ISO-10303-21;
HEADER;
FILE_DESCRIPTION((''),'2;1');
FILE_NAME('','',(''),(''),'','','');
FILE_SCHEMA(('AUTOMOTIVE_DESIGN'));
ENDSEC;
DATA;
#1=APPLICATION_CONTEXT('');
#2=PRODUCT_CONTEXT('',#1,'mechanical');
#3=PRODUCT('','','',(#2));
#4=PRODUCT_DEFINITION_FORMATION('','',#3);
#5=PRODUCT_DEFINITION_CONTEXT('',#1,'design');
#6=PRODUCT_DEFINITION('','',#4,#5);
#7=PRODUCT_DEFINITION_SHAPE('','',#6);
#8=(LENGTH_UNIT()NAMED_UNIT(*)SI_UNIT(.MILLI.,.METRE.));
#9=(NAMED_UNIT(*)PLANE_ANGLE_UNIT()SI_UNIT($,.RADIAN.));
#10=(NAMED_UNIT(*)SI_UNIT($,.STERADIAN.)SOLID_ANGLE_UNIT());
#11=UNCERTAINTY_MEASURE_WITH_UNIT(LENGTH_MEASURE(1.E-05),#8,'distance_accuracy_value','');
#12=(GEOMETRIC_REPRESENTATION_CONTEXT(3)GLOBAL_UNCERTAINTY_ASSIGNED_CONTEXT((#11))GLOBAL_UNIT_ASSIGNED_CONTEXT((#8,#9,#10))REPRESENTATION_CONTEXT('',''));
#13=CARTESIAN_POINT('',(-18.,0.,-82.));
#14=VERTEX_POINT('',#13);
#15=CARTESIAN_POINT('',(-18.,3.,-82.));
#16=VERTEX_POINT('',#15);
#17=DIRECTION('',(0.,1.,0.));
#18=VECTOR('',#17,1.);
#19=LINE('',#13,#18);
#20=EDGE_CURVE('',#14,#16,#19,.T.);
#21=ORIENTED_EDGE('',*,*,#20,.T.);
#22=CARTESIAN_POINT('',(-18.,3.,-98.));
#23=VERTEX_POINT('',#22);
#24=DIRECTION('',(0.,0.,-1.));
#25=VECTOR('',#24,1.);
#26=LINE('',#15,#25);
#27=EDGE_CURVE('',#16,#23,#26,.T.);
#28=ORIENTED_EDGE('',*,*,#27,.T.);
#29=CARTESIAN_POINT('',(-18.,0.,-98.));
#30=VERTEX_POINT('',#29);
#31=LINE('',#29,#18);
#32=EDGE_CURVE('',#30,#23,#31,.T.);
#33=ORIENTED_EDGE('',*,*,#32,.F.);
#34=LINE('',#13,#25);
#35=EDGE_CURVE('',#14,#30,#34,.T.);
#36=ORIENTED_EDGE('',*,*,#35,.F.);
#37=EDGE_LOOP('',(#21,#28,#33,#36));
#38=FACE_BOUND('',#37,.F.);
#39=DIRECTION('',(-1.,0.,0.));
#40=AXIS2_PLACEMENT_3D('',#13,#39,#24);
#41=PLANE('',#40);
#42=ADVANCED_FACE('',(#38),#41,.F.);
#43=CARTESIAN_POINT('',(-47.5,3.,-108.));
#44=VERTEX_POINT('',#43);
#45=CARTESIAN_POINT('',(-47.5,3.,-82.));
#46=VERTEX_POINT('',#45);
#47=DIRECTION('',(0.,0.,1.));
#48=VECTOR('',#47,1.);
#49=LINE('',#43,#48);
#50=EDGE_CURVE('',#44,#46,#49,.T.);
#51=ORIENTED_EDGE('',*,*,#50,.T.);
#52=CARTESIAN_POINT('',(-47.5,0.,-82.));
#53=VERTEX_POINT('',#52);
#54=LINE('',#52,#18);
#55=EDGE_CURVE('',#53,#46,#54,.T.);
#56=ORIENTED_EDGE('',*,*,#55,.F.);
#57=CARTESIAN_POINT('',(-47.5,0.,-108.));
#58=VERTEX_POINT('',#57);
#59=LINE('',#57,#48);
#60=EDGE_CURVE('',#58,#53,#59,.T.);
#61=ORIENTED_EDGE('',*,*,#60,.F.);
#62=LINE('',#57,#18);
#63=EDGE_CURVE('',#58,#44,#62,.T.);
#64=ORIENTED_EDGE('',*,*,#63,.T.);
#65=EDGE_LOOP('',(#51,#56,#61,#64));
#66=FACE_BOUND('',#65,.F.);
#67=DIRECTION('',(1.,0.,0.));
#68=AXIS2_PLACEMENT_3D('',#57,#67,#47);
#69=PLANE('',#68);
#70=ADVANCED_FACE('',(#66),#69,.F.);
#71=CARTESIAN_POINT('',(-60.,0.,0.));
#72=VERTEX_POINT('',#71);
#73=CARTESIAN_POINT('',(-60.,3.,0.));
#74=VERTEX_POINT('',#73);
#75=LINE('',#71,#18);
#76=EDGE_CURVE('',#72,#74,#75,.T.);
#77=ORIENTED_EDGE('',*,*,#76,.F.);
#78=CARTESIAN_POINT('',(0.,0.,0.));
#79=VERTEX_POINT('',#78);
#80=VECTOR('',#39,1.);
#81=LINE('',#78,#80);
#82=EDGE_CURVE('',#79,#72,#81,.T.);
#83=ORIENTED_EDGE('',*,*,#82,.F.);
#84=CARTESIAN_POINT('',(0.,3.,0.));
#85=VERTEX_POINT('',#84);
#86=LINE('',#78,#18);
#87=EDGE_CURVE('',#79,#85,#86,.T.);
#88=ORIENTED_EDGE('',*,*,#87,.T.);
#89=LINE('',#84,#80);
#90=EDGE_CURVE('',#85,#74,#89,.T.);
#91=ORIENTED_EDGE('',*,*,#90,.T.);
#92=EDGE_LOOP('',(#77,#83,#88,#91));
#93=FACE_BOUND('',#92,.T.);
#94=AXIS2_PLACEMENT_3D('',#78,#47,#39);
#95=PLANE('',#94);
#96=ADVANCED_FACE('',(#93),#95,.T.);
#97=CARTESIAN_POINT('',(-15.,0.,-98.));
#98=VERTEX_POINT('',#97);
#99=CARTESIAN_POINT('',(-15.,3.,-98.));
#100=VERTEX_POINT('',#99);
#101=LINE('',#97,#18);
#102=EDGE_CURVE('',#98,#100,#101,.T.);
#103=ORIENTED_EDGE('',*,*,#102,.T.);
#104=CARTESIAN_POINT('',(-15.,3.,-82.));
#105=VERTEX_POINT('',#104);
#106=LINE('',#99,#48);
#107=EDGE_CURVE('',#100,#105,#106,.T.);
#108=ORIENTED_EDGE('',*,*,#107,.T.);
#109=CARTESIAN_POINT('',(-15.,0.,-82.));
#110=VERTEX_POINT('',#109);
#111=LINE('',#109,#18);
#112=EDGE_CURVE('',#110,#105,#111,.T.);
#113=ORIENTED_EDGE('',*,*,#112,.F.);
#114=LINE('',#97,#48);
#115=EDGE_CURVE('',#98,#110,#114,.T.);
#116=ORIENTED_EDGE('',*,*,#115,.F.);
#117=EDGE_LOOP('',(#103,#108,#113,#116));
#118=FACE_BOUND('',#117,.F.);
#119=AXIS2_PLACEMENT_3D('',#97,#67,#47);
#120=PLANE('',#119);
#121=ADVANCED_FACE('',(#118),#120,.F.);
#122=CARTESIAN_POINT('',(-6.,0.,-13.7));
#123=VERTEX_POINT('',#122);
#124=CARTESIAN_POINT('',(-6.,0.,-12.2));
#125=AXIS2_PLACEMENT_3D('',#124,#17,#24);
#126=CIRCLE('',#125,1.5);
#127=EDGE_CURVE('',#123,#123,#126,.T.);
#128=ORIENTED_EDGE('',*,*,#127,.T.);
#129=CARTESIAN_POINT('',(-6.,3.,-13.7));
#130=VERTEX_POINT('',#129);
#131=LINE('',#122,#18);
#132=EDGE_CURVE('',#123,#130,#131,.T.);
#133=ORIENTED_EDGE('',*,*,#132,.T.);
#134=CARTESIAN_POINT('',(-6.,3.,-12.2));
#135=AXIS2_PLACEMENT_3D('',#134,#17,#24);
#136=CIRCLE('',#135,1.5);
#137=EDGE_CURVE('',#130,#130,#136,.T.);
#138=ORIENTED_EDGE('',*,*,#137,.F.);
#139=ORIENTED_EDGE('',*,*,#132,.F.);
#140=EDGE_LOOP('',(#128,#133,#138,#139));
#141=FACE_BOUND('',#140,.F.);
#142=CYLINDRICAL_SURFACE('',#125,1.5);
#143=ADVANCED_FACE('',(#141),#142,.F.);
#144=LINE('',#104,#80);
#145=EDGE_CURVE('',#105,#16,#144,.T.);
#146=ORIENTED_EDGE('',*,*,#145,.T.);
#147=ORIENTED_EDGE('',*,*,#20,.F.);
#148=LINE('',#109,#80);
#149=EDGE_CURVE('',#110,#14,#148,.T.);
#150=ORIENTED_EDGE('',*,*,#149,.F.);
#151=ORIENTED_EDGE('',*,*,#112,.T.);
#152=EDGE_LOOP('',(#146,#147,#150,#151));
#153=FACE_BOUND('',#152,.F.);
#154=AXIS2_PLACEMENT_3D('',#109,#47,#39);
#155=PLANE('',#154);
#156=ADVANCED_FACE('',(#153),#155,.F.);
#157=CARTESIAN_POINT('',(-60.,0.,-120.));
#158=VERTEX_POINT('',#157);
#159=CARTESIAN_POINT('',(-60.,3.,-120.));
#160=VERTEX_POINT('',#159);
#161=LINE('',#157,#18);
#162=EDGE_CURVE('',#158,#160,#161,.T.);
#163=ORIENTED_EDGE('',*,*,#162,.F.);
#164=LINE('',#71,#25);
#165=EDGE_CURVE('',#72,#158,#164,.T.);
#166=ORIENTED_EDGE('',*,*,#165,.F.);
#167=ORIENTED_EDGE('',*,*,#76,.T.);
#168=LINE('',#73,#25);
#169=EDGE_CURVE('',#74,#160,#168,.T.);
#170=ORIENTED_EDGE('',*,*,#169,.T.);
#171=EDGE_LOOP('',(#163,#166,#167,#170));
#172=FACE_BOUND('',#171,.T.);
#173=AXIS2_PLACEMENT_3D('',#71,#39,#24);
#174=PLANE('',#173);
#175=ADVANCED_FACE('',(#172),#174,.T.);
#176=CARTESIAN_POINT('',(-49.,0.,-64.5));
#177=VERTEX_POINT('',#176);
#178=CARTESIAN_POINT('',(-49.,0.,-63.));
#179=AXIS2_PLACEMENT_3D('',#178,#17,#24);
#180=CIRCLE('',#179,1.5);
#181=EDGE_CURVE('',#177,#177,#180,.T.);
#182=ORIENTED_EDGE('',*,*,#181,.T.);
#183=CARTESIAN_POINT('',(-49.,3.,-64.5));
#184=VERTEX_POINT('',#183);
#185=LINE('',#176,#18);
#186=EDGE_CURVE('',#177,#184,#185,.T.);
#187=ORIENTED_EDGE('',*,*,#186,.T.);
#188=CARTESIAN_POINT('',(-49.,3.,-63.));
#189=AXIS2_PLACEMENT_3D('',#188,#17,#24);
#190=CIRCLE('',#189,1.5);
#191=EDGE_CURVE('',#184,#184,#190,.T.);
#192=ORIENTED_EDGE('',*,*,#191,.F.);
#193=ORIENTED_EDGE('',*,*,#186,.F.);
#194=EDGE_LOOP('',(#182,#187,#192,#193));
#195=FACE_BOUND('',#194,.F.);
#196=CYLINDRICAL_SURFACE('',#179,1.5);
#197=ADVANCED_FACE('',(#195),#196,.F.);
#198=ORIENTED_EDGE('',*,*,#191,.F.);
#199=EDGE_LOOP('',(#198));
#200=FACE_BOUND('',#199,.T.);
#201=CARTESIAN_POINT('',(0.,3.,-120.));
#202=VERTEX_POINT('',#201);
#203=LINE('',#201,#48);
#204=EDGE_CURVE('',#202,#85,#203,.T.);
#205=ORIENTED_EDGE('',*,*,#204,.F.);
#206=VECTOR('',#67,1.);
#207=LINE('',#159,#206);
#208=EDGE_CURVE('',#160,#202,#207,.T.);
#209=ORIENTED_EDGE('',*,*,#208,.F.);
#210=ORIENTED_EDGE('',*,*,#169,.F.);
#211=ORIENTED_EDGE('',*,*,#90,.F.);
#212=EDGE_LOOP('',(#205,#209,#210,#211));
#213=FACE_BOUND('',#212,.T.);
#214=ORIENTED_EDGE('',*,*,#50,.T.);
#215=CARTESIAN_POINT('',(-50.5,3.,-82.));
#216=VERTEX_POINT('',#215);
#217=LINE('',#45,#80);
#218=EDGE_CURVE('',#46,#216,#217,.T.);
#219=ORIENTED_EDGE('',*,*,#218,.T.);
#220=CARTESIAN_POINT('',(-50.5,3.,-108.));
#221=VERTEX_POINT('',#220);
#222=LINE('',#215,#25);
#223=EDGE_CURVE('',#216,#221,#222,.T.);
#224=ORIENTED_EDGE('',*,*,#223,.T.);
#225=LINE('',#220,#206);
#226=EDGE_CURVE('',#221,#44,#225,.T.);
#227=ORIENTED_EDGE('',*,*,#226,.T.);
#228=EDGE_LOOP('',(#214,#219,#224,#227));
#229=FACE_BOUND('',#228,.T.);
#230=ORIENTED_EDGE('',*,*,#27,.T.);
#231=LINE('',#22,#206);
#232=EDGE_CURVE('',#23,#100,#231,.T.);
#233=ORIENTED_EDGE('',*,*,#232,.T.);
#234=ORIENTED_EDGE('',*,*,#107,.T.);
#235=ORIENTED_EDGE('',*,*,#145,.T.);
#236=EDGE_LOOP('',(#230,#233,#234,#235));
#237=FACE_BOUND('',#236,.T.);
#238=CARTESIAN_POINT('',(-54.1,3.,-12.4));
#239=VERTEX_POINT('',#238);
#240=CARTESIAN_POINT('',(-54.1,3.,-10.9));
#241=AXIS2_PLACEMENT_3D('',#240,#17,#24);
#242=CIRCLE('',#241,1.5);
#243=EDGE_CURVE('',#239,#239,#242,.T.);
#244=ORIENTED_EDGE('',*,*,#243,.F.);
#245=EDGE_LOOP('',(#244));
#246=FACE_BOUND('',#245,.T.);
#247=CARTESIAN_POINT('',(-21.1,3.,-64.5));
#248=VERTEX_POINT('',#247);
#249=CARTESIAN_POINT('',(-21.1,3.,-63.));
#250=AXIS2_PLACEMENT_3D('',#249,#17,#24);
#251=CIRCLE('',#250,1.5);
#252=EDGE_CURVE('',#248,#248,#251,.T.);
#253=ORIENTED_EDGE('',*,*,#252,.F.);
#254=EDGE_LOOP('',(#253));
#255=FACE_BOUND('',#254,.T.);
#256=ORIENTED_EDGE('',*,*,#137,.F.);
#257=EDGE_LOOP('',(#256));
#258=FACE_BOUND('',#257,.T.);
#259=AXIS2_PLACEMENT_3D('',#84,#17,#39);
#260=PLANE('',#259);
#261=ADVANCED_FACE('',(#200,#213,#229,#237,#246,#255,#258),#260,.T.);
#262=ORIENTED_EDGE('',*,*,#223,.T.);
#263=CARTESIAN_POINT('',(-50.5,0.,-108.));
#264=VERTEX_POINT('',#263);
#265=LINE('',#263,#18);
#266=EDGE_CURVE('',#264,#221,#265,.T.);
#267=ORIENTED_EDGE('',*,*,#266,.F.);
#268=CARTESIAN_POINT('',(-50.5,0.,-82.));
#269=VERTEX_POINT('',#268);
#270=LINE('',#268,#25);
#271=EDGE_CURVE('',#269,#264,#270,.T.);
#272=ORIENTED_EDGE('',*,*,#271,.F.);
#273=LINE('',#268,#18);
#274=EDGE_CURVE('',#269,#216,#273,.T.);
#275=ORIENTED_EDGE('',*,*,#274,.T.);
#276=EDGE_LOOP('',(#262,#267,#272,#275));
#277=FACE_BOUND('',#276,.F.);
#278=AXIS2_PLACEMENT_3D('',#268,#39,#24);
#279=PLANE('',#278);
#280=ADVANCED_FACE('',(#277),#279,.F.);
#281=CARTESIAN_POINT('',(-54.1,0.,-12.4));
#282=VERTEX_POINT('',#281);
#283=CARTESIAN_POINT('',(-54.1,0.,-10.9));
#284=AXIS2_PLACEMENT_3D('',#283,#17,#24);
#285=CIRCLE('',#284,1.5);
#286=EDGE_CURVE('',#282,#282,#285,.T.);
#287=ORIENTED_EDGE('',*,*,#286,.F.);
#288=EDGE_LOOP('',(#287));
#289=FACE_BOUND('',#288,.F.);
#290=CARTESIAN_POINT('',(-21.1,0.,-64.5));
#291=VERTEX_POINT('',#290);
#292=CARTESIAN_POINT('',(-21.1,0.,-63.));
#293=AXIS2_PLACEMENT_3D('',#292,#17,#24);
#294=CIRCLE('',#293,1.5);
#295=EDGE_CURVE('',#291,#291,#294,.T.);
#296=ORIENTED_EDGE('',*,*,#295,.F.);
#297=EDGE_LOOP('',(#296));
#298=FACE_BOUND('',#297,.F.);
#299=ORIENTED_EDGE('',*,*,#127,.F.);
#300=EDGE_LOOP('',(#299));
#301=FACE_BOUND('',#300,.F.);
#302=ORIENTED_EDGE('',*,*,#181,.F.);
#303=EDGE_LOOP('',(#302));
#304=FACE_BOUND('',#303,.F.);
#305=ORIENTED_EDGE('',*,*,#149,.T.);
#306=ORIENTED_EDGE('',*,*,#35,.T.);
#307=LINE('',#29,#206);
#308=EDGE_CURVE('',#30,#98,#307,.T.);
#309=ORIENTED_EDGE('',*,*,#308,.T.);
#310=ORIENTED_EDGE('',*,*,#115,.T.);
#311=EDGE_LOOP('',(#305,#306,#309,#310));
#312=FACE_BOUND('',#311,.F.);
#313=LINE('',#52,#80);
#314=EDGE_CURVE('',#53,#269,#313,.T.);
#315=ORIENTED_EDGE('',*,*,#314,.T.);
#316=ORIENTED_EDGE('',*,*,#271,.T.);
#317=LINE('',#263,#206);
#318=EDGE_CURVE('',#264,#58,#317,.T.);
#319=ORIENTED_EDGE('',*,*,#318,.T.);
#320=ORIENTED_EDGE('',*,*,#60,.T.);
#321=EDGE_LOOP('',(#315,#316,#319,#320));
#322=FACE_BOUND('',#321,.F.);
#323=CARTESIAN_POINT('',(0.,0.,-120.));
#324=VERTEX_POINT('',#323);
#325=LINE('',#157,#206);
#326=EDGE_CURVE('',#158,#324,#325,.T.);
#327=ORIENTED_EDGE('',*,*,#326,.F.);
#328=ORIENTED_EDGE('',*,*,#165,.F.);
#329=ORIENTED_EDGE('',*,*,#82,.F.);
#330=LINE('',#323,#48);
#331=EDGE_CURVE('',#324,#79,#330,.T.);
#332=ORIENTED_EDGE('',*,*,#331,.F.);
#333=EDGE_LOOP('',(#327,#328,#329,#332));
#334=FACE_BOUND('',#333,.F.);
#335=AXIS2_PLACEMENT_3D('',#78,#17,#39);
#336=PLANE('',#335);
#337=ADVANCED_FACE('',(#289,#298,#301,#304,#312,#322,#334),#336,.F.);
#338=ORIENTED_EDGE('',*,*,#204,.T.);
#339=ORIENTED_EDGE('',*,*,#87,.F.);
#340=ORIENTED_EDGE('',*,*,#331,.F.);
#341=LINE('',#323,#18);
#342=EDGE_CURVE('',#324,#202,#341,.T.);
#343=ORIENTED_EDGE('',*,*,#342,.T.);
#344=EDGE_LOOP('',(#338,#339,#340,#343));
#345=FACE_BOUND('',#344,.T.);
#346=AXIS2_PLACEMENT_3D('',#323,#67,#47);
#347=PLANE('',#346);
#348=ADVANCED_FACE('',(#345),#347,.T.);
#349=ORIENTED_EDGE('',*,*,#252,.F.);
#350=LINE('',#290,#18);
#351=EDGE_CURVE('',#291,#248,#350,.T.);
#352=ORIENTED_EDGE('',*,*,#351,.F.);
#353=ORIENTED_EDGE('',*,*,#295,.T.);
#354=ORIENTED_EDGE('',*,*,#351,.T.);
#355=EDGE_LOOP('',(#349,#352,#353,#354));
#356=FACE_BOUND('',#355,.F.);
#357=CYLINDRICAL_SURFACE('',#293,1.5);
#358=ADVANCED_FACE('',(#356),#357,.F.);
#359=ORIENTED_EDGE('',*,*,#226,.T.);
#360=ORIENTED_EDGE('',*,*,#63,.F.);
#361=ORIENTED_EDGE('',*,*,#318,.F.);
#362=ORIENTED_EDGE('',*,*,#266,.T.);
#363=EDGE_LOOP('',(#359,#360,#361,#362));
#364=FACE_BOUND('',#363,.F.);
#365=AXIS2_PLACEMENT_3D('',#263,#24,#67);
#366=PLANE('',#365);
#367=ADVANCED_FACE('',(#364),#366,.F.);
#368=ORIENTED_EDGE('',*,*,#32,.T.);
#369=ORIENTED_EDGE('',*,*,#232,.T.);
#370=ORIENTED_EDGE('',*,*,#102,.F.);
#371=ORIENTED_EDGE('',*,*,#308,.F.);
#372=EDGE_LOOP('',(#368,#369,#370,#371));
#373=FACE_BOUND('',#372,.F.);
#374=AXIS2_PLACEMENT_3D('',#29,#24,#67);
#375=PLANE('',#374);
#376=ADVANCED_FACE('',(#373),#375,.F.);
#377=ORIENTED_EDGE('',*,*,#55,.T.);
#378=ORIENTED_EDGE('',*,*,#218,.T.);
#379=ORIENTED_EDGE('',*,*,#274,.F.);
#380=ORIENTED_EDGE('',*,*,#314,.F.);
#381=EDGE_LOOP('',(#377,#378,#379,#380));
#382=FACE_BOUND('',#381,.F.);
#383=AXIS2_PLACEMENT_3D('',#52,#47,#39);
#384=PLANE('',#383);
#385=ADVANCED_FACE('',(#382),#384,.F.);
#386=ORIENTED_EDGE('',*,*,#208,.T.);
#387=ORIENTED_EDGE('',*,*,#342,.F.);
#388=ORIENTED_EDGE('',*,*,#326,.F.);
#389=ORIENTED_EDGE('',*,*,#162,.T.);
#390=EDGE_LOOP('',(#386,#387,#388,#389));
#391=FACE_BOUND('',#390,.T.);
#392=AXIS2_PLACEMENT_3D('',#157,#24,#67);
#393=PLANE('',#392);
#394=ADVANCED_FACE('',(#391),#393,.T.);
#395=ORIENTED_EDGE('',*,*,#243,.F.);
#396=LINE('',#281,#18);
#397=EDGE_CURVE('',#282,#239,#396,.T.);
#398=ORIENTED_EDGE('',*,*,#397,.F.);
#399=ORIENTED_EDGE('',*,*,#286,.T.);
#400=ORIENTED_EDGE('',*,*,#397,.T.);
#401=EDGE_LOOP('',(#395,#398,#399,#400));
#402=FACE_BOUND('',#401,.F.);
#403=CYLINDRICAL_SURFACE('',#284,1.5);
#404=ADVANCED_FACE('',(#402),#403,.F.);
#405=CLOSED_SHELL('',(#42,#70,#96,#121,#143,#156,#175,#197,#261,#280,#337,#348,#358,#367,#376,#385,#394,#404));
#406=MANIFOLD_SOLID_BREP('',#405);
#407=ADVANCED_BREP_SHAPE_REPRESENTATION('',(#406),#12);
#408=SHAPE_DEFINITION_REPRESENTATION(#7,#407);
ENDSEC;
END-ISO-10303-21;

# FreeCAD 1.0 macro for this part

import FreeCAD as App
import Part
import Sketcher
from FreeCAD import Vector
Q = App.Units.Quantity


def add_polygon(sketch, points):
    """Adds a closed chain of lines whose ends are joined by coincident constraints."""
    first, n = sketch.GeometryCount, len(points)
    for a, b in zip(points, points[1:] + points[:1]):
        sketch.addGeometry(Part.LineSegment(App.Vector(*a, 0), App.Vector(*b, 0)), False)
    for i in range(n):
        sketch.addConstraint(Sketcher.Constraint("Coincident", first + i, 2, first + (i + 1) % n, 1))

doc = App.newDocument("Part")
body = doc.addObject("PartDesign::Body", "Body")

# Sketch on XZ plane
sketch1 = body.newObject("Sketcher::SketchObject", "Sketch")
sketch1.AttachmentSupport = (doc.getObject("XZ_Plane"), [""])
sketch1.MapMode = "FlatFace"
add_polygon(sketch1, [(-60, 0), (0, 0), (0, -120), (-60, -120)])  # lines 0-3
add_polygon(sketch1, [(-15, -98), (-15, -82), (-18, -82), (-18, -98)])  # lines 4-7
add_polygon(sketch1, [(-50.5, -82), (-50.5, -108), (-47.5, -108), (-47.5, -82)])  # lines 8-11
sketch1.addConstraint([
    Sketcher.Constraint("Horizontal", 0),
    Sketcher.Constraint("Vertical", 1),
    Sketcher.Constraint("Horizontal", 2),
    Sketcher.Constraint("Vertical", 3),
    Sketcher.Constraint("Vertical", 4),
    Sketcher.Constraint("Horizontal", 5),
    Sketcher.Constraint("Vertical", 6),
    Sketcher.Constraint("Horizontal", 7),
    Sketcher.Constraint("Vertical", 8),
    Sketcher.Constraint("Horizontal", 9),
    Sketcher.Constraint("Vertical", 10),
    Sketcher.Constraint("Horizontal", 11),
    Sketcher.Constraint("Coincident", 0, 2, -1, 1),
    Sketcher.Constraint("Horizontal", 5, 2, 10, 2),
    Sketcher.Constraint("Equal", 7, 9),
    Sketcher.Constraint("DistanceX", 0, 1, 0, 2, Q("60 mm")),
    Sketcher.Constraint("DistanceX", 5, 2, 5, 1, Q("3 mm")),
    Sketcher.Constraint("DistanceY", 1, 2, 1, 1, Q("120 mm")),
    Sketcher.Constraint("DistanceY", 4, 1, 4, 2, Q("16 mm")),
    Sketcher.Constraint("DistanceY", 8, 2, 8, 1, Q("26 mm")),
    Sketcher.Constraint("DistanceY", 1, 2, 6, 2, Q("22 mm")),
    Sketcher.Constraint("DistanceX", 2, 2, 8, 2, Q("9.5 mm")),
    Sketcher.Constraint("DistanceX", 9, 2, 6, 2, Q("29.5 mm")),
])
pad1 = body.newObject("PartDesign::Pad", "Pad")
pad1.Profile = sketch1
pad1.Length = 3
pad1.Reversed = True

# Sketch on XZ plane
sketch2 = body.newObject("Sketcher::SketchObject", "Sketch001")
sketch2.AttachmentSupport = (doc.getObject("XZ_Plane"), [""])
sketch2.MapMode = "FlatFace"
sketch2.addGeometry([
    Part.Circle(Vector(-49, -63, 0), Vector(0, 0, 1), 1.5),
    Part.Circle(Vector(-21.1, -63, 0), Vector(0, 0, 1), 1.5),
    Part.Circle(Vector(-6, -12.2, 0), Vector(0, 0, 1), 1.5),
    Part.Circle(Vector(-54.1, -10.9, 0), Vector(0, 0, 1), 1.5),
], False)
sketch2.addConstraint([
    Sketcher.Constraint("Equal", 0, 1),
    Sketcher.Constraint("Equal", 1, 2),
    Sketcher.Constraint("Equal", 2, 3),
    Sketcher.Constraint("Horizontal", 0, 3, 1, 3),
    Sketcher.Constraint("Diameter", 0, Q("3 mm")),
    Sketcher.Constraint("DistanceX", 0, 3, -1, 1, Q("49 mm")),
    Sketcher.Constraint("DistanceY", 0, 3, -1, 1, Q("63 mm")),
    Sketcher.Constraint("DistanceX", 2, 3, -1, 1, Q("6 mm")),
    Sketcher.Constraint("DistanceX", 3, 3, 1, 3, Q("33 mm")),
    Sketcher.Constraint("DistanceX", 1, 3, -1, 1, Q("21.1 mm")),
    Sketcher.Constraint("DistanceY", 2, 3, -1, 1, Q("12.2 mm")),
    Sketcher.Constraint("DistanceY", 3, 3, -1, 1, Q("10.9 mm")),
])
doc.recompute()
hole = body.newObject("PartDesign::Hole", "Hole")
hole.Profile = sketch2
hole.ThreadType = "None"
hole.Diameter = 3
hole.DepthType = "ThroughAll"

doc.recompute()
